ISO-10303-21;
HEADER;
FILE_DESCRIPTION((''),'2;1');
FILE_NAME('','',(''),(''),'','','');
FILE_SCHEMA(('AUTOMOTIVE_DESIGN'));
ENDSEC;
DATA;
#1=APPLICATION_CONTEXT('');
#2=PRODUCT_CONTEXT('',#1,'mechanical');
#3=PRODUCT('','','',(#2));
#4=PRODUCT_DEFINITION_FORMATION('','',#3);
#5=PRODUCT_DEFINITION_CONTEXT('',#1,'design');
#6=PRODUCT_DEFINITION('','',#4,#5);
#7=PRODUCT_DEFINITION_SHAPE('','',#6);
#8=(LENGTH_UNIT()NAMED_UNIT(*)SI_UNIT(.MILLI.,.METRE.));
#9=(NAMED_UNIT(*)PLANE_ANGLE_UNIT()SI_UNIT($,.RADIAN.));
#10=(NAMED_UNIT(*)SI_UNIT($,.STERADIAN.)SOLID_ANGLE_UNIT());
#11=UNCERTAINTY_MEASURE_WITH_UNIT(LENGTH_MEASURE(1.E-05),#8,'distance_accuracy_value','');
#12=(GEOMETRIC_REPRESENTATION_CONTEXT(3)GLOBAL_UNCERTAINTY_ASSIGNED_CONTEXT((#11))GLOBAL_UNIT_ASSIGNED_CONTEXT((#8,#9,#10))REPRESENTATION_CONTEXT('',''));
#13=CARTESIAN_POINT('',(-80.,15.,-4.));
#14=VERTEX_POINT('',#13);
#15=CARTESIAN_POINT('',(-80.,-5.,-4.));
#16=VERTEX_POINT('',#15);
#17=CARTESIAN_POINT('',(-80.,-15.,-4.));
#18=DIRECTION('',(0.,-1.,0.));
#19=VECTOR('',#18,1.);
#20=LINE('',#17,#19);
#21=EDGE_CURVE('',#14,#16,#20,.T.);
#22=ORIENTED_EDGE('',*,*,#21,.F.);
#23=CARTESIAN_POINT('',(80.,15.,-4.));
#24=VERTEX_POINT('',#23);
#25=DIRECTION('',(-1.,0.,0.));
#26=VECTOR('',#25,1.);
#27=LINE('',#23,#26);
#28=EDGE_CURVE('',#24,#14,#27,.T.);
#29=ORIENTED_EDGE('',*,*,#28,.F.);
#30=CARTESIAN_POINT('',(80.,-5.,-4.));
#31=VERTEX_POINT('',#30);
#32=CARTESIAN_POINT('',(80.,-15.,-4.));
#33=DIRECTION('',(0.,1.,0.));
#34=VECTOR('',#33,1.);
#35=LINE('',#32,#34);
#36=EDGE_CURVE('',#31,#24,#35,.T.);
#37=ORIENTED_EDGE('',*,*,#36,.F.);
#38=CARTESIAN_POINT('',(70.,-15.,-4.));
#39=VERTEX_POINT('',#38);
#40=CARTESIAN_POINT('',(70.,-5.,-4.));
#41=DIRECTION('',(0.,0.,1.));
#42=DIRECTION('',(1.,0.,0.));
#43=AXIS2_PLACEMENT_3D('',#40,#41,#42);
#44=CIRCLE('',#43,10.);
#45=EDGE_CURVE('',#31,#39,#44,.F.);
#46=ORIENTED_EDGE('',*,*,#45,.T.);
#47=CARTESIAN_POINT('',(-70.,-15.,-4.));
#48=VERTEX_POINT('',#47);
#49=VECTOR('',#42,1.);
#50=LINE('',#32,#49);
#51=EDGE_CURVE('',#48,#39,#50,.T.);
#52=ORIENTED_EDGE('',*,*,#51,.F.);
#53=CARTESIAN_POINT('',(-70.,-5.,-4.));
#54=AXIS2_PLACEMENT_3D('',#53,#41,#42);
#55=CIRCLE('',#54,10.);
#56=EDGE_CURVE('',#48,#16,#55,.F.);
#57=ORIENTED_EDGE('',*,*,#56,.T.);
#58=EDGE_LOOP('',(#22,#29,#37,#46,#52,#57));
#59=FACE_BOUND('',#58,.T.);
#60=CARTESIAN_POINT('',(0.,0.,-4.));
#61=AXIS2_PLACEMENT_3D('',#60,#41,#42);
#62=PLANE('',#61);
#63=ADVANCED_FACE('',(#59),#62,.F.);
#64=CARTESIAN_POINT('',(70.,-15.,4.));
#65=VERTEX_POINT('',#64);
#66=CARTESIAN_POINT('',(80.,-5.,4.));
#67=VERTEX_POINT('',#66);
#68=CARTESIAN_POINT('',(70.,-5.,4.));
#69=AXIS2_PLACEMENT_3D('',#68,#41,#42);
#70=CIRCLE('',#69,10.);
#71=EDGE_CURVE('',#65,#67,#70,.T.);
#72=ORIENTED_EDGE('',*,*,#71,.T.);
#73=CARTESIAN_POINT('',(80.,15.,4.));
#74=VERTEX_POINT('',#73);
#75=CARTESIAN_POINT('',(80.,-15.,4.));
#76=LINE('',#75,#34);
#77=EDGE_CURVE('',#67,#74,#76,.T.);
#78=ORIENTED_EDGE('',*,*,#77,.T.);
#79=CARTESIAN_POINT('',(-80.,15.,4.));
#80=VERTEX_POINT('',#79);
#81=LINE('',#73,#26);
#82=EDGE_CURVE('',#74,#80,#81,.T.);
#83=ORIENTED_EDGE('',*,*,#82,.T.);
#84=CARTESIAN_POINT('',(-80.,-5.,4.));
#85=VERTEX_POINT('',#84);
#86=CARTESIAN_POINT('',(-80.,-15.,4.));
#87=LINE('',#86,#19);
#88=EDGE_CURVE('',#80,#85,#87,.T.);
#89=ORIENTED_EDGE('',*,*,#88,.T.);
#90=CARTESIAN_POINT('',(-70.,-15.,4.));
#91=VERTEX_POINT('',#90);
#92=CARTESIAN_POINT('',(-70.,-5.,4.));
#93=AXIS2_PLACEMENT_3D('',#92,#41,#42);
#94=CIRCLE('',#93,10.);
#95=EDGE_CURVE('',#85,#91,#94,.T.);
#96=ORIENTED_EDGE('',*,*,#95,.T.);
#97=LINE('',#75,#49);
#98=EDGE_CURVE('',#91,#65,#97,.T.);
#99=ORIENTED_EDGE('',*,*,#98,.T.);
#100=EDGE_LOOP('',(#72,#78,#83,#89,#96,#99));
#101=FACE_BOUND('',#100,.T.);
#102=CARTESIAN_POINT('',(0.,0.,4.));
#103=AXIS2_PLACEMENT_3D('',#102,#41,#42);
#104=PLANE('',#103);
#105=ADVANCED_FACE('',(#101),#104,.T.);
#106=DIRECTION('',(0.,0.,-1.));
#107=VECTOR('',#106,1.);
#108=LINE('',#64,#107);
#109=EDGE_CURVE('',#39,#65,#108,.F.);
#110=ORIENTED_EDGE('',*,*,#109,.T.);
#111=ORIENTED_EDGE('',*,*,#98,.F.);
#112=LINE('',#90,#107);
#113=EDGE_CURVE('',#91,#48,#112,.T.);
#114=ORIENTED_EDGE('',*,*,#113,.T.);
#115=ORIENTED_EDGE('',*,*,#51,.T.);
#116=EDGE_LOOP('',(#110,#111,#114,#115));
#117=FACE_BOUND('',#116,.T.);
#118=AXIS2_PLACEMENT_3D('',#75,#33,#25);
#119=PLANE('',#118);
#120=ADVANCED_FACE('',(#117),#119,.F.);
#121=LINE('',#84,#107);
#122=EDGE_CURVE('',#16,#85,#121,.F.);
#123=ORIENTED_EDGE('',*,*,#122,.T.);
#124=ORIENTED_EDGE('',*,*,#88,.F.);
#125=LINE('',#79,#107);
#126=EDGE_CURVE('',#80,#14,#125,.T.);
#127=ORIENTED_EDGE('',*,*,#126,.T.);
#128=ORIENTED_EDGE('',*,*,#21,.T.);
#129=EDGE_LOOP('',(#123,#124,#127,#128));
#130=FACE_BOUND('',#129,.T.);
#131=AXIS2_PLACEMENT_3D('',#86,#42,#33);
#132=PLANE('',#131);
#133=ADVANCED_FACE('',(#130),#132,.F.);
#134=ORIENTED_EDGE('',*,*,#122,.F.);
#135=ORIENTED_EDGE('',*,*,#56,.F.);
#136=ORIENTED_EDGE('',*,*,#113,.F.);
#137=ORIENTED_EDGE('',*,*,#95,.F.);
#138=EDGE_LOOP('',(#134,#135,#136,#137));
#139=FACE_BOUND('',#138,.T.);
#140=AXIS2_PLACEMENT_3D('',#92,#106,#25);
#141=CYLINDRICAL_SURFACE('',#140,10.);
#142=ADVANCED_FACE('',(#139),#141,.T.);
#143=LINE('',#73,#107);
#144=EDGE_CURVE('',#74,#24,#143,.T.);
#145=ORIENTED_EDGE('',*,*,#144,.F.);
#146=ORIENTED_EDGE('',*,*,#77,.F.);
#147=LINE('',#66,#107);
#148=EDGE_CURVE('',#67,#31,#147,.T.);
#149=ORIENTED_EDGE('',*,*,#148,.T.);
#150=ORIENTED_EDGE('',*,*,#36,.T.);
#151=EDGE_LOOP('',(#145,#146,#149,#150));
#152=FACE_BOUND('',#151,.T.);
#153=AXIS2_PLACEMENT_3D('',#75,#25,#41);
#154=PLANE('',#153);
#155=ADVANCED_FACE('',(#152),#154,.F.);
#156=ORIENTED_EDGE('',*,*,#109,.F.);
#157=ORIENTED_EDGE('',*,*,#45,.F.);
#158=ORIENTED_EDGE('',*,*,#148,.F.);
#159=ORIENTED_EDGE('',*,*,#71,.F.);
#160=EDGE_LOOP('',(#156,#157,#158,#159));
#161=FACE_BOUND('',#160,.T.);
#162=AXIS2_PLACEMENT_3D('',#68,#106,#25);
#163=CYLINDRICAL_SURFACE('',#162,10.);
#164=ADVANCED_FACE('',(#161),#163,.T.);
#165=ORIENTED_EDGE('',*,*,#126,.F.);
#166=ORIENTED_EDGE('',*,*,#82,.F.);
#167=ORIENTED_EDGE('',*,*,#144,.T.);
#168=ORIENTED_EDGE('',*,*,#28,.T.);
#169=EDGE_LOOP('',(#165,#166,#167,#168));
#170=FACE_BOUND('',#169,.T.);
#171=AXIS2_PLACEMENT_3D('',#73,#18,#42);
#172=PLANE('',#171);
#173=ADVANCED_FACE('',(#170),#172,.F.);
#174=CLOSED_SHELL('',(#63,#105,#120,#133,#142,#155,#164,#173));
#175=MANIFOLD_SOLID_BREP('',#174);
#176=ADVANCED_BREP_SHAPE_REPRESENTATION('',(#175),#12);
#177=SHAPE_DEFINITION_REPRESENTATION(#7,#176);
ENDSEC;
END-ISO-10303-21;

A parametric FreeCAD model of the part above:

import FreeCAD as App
import Part
import Sketcher
from FreeCAD import Vector


def edges_at(feature, points):
    """Names of the edges that pass closest to the given points."""
    edges = feature.Shape.Edges
    near = lambda p: min(range(len(edges)), key=lambda i: edges[i].distToShape(Part.Vertex(*p))[0])
    return sorted({f"Edge{near(p) + 1}" for p in points})


def add_polygon(sketch, points):
    """Adds a closed chain of lines whose ends are joined by coincident constraints."""
    first, n = sketch.GeometryCount, len(points)
    for a, b in zip(points, points[1:] + points[:1]):
        sketch.addGeometry(Part.LineSegment(App.Vector(*a, 0), App.Vector(*b, 0)), False)
    for i in range(n):
        sketch.addConstraint(Sketcher.Constraint("Coincident", first + i, 2, first + (i + 1) % n, 1))

doc = App.newDocument("Part")
body = doc.addObject("PartDesign::Body", "Body")

sketch1 = doc.addObject("Sketcher::SketchObject", "Sketch")
body.addObject(sketch1)
sketch1.AttachmentSupport = (doc.XY_Plane, [""])
sketch1.MapMode = "FlatFace"
add_polygon(sketch1, [(-80, 15), (-80, -15), (80, -15), (80, 15)])
sketch1.addConstraint([
    Sketcher.Constraint("Vertical", 0),
    Sketcher.Constraint("Horizontal", 1),
    Sketcher.Constraint("Vertical", 2),
    Sketcher.Constraint("Horizontal", 3),
    Sketcher.Constraint("Symmetric", 0, 2, 2, 2, -1, 1),
    Sketcher.Constraint("DistanceX", 1, 1, 1, 2, 160.0),
    Sketcher.Constraint("DistanceY", 0, 2, 0, 1, 30.0),
])
pad1 = doc.addObject("PartDesign::Pad", "Pad")
body.addObject(pad1)
pad1.Profile = sketch1
pad1.Length = 8
pad1.Midplane = True
doc.recompute()

fillet = doc.addObject("PartDesign::Fillet", "Fillet")
body.addObject(fillet)
fillet.Base = (pad1, edges_at(pad1, [(80, -15, 0), (-80, -15, 0)]))
fillet.Radius = 10

doc.recompute()
